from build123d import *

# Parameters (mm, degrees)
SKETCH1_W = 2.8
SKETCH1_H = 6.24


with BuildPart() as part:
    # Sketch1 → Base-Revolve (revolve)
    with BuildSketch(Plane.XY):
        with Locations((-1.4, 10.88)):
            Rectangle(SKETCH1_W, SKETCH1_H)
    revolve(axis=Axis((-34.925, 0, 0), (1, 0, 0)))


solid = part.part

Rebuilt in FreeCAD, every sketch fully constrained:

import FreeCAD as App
import Part
import Sketcher
from FreeCAD import Vector
Q = App.Units.Quantity

doc = App.newDocument("Part")
body = doc.addObject("PartDesign::Body", "Body")

sketch1 = body.newObject("Sketcher::SketchObject", "Sketch")
sketch1.AttachmentSupport = (doc.getObject("XY_Plane"), [""])
sketch1.MapMode = "FlatFace"
sketch1.addGeometry(Part.LineSegment(Vector(-2.8, 14, 0), Vector(-2.8, 7.8, 0)), False)
sketch1.addGeometry(Part.LineSegment(Vector(-2.8, 7.8, 0), Vector(0, 7.8, 0)), False)
sketch1.addGeometry(Part.LineSegment(Vector(0, 7.8, 0), Vector(0, 14, 0)), False)
sketch1.addGeometry(Part.LineSegment(Vector(0, 14, 0), Vector(-2.8, 14, 0)), False)
sketch1.addConstraint(Sketcher.Constraint("Coincident", 0, 2, 1, 1))
sketch1.addConstraint(Sketcher.Constraint("Coincident", 1, 2, 2, 1))
sketch1.addConstraint(Sketcher.Constraint("Coincident", 2, 2, 3, 1))
sketch1.addConstraint(Sketcher.Constraint("Coincident", 3, 2, 0, 1))
sketch1.addConstraint(Sketcher.Constraint("Vertical", 0))
sketch1.addConstraint(Sketcher.Constraint("Horizontal", 1))
sketch1.addConstraint(Sketcher.Constraint("Vertical", 2))
sketch1.addConstraint(Sketcher.Constraint("Horizontal", 3))
sketch1.addConstraint(Sketcher.Constraint("PointOnObject", 1, 2, -2))
sketch1.addConstraint(Sketcher.Constraint("DistanceX", 1, 1, 1, 2, Q("2.8 mm")))
sketch1.addConstraint(Sketcher.Constraint("DistanceY", -1, 1, 2, 2, Q("14 mm")))
sketch1.addConstraint(Sketcher.Constraint("DistanceY", 0, 2, 0, 1, Q("6.24 mm")))
revolution = body.newObject("PartDesign::Revolution", "Revolution")
revolution.Profile = sketch1
revolution.ReferenceAxis = (sketch1, ["H_Axis"])
revolution.Angle = 360

doc.recompute()
